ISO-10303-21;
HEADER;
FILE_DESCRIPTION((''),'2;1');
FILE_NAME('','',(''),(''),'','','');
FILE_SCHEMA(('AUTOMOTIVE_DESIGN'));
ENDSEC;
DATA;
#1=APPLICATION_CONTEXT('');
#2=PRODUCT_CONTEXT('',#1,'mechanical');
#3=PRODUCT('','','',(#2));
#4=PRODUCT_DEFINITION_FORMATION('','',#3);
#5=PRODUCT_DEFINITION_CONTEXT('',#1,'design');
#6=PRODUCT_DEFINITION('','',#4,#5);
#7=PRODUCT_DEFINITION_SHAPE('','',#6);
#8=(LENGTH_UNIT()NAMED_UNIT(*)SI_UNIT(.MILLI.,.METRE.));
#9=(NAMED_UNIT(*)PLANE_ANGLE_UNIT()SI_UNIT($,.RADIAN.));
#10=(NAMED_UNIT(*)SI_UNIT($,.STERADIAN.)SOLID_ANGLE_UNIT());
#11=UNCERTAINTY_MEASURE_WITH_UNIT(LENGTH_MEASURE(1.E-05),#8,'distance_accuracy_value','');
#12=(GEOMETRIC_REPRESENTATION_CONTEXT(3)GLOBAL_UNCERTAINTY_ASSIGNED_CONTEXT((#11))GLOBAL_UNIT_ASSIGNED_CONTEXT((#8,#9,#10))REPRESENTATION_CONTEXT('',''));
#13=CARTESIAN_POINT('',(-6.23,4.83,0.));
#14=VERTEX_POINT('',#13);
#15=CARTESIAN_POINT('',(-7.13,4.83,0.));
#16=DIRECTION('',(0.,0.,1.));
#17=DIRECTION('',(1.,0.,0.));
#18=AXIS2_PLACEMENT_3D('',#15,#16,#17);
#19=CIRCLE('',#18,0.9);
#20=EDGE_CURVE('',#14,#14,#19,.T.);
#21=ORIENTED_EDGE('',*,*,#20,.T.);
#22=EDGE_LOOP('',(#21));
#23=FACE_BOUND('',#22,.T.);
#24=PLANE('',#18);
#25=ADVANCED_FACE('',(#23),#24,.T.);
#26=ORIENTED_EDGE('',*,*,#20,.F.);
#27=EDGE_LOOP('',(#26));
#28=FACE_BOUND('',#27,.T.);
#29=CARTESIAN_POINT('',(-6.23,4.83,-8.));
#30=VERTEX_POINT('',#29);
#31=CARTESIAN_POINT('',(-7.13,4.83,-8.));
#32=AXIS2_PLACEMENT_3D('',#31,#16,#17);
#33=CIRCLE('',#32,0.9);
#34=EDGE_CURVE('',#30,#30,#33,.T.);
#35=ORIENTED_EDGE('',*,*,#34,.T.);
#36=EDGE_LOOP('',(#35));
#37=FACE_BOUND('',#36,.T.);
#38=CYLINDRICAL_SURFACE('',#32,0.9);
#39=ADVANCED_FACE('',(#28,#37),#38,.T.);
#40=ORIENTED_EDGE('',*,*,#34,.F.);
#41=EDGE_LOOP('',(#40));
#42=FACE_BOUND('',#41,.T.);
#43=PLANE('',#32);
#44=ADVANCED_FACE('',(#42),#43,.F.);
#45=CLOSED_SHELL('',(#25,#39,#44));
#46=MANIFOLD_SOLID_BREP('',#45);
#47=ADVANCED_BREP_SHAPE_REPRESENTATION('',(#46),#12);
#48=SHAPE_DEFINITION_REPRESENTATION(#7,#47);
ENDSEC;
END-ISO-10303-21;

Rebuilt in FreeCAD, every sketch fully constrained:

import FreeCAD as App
import Part
import Sketcher
Q = App.Units.Quantity

doc = App.newDocument("Part")
params = doc.addObject("Spreadsheet::Sheet", "Params")
for row, (alias, value) in enumerate([
    ("sketch1_diameter", "1.8 mm"),
    ("pad1_length", "8 mm"),
], start=1):
    params.set(f"A{row}", alias)
    params.set(f"B{row}", "=" + value)
    params.setAlias(f"B{row}", alias)

body = doc.addObject("PartDesign::Body", "Body")

# Sketch on XY plane
sketch1 = body.newObject("Sketcher::SketchObject", "Sketch")
sketch1.AttachmentSupport = (doc.getObject("XY_Plane"), [""])
sketch1.MapMode = "FlatFace"
sketch1.addGeometry(Part.Circle(App.Vector(-7.13, 4.83, 0), App.Vector(0, 0, 1), 0.9), False)
sketch1.addConstraint(Sketcher.Constraint("Diameter", 0, Q("1.8 mm")))
sketch1.addConstraint(Sketcher.Constraint("DistanceX", 0, 3, -1, 1, Q("7.13 mm")))
sketch1.addConstraint(Sketcher.Constraint("DistanceY", -1, 1, 0, 3, Q("4.83 mm")))
sketch1.setExpression("Constraints[0]", "Params.sketch1_diameter")
pad1 = body.newObject("PartDesign::Pad", "Pad")
pad1.Profile = sketch1
pad1.setExpression("Length", "Params.pad1_length")
pad1.Reversed = True

doc.recompute()
